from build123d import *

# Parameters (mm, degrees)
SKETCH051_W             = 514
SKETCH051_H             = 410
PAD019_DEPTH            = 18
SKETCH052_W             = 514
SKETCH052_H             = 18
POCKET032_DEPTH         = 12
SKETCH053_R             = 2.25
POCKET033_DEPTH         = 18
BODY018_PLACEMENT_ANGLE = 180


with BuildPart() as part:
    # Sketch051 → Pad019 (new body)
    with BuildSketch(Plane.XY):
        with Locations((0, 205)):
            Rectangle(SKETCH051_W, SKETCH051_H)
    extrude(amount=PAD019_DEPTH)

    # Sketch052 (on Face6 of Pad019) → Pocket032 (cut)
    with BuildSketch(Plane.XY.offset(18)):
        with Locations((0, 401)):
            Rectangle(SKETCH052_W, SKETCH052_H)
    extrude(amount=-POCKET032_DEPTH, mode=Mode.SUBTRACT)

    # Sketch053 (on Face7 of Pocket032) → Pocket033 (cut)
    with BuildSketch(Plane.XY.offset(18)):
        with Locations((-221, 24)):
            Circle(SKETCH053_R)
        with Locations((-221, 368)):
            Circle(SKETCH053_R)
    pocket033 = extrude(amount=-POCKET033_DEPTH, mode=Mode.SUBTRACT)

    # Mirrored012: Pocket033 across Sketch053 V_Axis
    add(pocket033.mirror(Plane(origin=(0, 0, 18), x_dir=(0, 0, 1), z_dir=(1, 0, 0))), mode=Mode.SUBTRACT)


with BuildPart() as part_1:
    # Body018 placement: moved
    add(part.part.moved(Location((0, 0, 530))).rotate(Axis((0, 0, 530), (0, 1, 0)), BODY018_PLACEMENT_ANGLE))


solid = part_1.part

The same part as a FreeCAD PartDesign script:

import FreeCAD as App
import Part
import Sketcher

V = App.Vector
Q = App.Units.Quantity


def add_polygon(sketch, points):
    """Adds a closed chain of lines whose ends are joined by coincident constraints."""
    first, n = sketch.GeometryCount, len(points)
    for a, b in zip(points, points[1:] + points[:1]):
        sketch.addGeometry(Part.LineSegment(App.Vector(*a, 0), App.Vector(*b, 0)), False)
    for i in range(n):
        sketch.addConstraint(Sketcher.Constraint("Coincident", first + i, 2, first + (i + 1) % n, 1))

doc = App.newDocument("Part")
body = doc.addObject("PartDesign::Body", "Body")

sketch1 = body.newObject("Sketcher::SketchObject", "Sketch")
sketch1.AttachmentSupport = (doc.getObject("XY_Plane"), [""])
sketch1.MapMode = "FlatFace"
add_polygon(sketch1, [(-257, 410), (-257, 0), (257, 0), (257, 410)])
sketch1.addConstraint([
    Sketcher.Constraint("Vertical", 0),
    Sketcher.Constraint("Horizontal", 1),
    Sketcher.Constraint("Vertical", 2),
    Sketcher.Constraint("Horizontal", 3),
    Sketcher.Constraint("Symmetric", 0, 2, 1, 2, -1, 1),
    Sketcher.Constraint("DistanceX", 1, 1, 1, 2, Q("514 mm")),
    Sketcher.Constraint("DistanceY", 0, 2, 0, 1, Q("410 mm")),
])
pad1 = body.newObject("PartDesign::Pad", "Pad")
pad1.Profile = sketch1
pad1.Length = 18

sketch2 = body.newObject("Sketcher::SketchObject", "Sketch001")
sketch2.AttachmentSupport = (doc.getObject("XY_Plane"), [""])
sketch2.MapMode = "FlatFace"
sketch2.AttachmentOffset = App.Placement(V(0, 0, 18), App.Rotation())
add_polygon(sketch2, [(-257, 410), (-257, 392), (257, 392), (257, 410)])
sketch2.addConstraint([
    Sketcher.Constraint("Vertical", 0),
    Sketcher.Constraint("Horizontal", 1),
    Sketcher.Constraint("Vertical", 2),
    Sketcher.Constraint("Horizontal", 3),
    Sketcher.Constraint("DistanceX", 1, 1, 1, 2, Q("514 mm")),
    Sketcher.Constraint("DistanceY", 0, 2, 0, 1, Q("18 mm")),
    Sketcher.Constraint("DistanceX", 0, 2, -1, 1, Q("257 mm")),
    Sketcher.Constraint("DistanceY", -1, 1, 0, 2, Q("392 mm")),
])
pocket1 = body.newObject("PartDesign::Pocket", "Pocket")
pocket1.Profile = sketch2
pocket1.Length = 12

sketch3 = body.newObject("Sketcher::SketchObject", "Sketch002")
sketch3.AttachmentSupport = (doc.getObject("XY_Plane"), [""])
sketch3.MapMode = "FlatFace"
sketch3.AttachmentOffset = App.Placement(V(0, 0, 18), App.Rotation())
sketch3.addGeometry([
    Part.Circle(V(-221, 24, 0), V(0, 0, 1), 2.2),
    Part.Circle(V(-221, 368, 0), V(0, 0, 1), 2.2),
], False)
sketch3.addConstraint([
    Sketcher.Constraint("Equal", 0, 1),
    Sketcher.Constraint("Vertical", 0, 3, 1, 3),
    Sketcher.Constraint("Diameter", 0, Q("4.5 mm")),
    Sketcher.Constraint("DistanceX", 0, 3, -1, 1, Q("221 mm")),
    Sketcher.Constraint("DistanceY", -1, 1, 0, 3, Q("24 mm")),
    Sketcher.Constraint("DistanceY", -1, 1, 1, 3, Q("368 mm")),
])
pocket2 = body.newObject("PartDesign::Pocket", "Pocket001")
pocket2.Profile = sketch3
pocket2.Length = 18
doc.recompute()

mirrored = body.newObject("PartDesign::Mirrored", "Mirrored")
mirrored.Originals = [pocket2]
mirrored.MirrorPlane = (doc.getObject("YZ_Plane"), [""])
body.Tip = mirrored
body2 = doc.addObject("PartDesign::Body", "Body001")
doc.recompute()

body.Placement = App.Placement(V(0, 0, 530), App.Rotation(V(0, 1, 0), 180))
boolean = body2.newObject("PartDesign::Boolean", "Boolean")
boolean.Type = "Fuse"
boolean.addObjects([body])

doc.recompute()
